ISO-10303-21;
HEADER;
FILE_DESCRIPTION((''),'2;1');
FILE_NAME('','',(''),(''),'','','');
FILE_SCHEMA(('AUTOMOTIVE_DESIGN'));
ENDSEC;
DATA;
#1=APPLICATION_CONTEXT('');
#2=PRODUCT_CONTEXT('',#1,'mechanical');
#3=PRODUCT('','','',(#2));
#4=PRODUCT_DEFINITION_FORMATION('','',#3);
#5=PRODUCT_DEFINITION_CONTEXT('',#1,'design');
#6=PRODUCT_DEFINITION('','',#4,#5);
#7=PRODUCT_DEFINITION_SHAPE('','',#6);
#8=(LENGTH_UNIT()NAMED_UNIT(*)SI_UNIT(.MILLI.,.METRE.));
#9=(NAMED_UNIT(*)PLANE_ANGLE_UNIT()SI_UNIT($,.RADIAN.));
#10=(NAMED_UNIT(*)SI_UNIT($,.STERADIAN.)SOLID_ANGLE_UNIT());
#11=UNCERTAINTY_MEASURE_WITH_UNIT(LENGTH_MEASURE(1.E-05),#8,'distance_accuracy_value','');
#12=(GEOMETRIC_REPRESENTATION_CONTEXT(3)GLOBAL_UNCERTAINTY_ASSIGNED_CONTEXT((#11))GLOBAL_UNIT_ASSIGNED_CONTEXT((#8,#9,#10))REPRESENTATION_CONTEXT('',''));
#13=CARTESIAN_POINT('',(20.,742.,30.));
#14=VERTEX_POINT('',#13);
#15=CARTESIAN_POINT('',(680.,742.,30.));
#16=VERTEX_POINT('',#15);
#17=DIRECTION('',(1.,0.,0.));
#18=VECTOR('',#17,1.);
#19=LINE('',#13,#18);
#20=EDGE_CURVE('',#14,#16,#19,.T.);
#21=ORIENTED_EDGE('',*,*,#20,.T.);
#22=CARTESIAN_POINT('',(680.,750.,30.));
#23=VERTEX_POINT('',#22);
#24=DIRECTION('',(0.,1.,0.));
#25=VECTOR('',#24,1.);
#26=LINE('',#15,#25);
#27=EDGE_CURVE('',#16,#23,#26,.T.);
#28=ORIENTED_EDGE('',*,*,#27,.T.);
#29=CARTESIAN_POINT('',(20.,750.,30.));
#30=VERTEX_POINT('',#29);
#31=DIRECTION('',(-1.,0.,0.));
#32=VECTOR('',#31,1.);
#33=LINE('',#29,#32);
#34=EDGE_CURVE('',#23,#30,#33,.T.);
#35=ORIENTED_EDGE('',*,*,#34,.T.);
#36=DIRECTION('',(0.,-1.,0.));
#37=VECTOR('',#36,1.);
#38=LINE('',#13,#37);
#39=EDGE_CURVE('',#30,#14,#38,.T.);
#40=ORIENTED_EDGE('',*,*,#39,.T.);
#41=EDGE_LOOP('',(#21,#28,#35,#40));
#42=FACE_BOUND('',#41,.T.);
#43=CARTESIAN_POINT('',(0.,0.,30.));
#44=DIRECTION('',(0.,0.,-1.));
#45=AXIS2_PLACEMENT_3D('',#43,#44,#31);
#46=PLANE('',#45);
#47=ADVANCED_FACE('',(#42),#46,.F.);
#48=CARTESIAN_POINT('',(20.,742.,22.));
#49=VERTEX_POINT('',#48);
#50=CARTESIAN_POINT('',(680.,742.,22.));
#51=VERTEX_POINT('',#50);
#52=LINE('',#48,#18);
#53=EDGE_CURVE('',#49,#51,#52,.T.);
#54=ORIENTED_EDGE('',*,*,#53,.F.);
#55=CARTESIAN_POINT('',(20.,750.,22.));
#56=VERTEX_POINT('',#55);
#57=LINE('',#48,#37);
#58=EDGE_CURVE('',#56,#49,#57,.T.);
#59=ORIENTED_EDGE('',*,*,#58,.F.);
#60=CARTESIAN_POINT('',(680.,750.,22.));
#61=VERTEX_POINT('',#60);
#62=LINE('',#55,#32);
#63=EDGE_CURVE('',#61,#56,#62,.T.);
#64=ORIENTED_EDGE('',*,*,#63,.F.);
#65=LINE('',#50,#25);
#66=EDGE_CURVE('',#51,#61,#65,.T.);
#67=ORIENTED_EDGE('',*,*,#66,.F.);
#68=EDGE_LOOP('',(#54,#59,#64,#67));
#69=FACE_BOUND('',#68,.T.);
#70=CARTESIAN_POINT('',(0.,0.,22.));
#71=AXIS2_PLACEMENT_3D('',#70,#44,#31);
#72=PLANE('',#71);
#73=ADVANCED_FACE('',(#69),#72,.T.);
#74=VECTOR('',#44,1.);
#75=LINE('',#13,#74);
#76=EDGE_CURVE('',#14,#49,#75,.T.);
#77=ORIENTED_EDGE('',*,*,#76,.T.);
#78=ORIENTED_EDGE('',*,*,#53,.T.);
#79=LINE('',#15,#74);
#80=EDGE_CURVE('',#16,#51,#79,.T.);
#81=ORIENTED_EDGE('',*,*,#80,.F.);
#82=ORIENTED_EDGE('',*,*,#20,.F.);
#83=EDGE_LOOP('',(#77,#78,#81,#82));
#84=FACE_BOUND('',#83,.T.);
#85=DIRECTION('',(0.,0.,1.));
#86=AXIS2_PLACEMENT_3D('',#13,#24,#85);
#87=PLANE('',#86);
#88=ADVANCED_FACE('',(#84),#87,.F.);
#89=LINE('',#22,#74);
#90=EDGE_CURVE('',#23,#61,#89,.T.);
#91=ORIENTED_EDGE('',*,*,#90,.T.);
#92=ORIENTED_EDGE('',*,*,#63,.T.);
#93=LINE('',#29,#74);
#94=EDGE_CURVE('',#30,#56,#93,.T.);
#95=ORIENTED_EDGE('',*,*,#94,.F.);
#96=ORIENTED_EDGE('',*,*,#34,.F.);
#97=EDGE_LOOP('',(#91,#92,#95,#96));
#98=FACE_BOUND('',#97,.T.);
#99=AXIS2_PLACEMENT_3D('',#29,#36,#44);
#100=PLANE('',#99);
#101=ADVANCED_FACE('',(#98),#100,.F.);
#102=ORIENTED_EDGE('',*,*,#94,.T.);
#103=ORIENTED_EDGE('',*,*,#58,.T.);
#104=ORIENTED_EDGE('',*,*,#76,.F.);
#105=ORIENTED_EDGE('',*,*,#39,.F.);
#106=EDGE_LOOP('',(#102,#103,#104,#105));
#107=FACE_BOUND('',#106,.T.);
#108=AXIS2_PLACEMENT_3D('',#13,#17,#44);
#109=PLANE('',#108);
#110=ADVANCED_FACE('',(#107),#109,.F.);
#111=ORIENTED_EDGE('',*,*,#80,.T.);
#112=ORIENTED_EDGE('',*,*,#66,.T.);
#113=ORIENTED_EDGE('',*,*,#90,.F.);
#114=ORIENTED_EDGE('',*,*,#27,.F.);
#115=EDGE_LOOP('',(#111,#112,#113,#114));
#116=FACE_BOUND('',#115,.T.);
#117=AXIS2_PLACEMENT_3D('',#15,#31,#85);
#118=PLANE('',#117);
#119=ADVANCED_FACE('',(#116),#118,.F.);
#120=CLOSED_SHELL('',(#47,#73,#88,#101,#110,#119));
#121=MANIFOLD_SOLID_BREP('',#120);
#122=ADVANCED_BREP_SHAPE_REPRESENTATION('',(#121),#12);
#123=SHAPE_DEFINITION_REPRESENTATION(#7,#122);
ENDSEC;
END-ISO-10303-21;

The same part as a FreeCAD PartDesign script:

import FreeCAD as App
import Part
import Sketcher
Q = App.Units.Quantity

doc = App.newDocument("Part")
body = doc.addObject("PartDesign::Body", "Body")

sketch1 = body.newObject("Sketcher::SketchObject", "Sketch")
sketch1.AttachmentSupport = (doc.getObject("XY_Plane"), [""])
sketch1.MapMode = "FlatFace"
sketch1.AttachmentOffset = App.Placement(App.Vector(0, 0, 22), App.Rotation())
sketch1.addGeometry([
    Part.LineSegment(App.Vector(20, 750, 0), App.Vector(20, 742, 0)),
    Part.LineSegment(App.Vector(20, 742, 0), App.Vector(680, 742, 0)),
    Part.LineSegment(App.Vector(680, 742, 0), App.Vector(680, 750, 0)),
    Part.LineSegment(App.Vector(680, 750, 0), App.Vector(20, 750, 0)),
], False)
sketch1.addConstraint([
    Sketcher.Constraint("Coincident", 0, 2, 1, 1),
    Sketcher.Constraint("Coincident", 1, 2, 2, 1),
    Sketcher.Constraint("Coincident", 2, 2, 3, 1),
    Sketcher.Constraint("Coincident", 3, 2, 0, 1),
    Sketcher.Constraint("Vertical", 0),
    Sketcher.Constraint("Horizontal", 1),
    Sketcher.Constraint("Vertical", 2),
    Sketcher.Constraint("Horizontal", 3),
    Sketcher.Constraint("DistanceX", 1, 1, 1, 2, Q("660 mm")),
    Sketcher.Constraint("DistanceY", 0, 2, 0, 1, Q("8 mm")),
    Sketcher.Constraint("DistanceX", -1, 1, 0, 2, Q("20 mm")),
    Sketcher.Constraint("DistanceY", -1, 1, 0, 2, Q("742 mm")),
])
pad1 = body.newObject("PartDesign::Pad", "Pad")
pad1.Profile = sketch1
pad1.Length = 8

doc.recompute()
